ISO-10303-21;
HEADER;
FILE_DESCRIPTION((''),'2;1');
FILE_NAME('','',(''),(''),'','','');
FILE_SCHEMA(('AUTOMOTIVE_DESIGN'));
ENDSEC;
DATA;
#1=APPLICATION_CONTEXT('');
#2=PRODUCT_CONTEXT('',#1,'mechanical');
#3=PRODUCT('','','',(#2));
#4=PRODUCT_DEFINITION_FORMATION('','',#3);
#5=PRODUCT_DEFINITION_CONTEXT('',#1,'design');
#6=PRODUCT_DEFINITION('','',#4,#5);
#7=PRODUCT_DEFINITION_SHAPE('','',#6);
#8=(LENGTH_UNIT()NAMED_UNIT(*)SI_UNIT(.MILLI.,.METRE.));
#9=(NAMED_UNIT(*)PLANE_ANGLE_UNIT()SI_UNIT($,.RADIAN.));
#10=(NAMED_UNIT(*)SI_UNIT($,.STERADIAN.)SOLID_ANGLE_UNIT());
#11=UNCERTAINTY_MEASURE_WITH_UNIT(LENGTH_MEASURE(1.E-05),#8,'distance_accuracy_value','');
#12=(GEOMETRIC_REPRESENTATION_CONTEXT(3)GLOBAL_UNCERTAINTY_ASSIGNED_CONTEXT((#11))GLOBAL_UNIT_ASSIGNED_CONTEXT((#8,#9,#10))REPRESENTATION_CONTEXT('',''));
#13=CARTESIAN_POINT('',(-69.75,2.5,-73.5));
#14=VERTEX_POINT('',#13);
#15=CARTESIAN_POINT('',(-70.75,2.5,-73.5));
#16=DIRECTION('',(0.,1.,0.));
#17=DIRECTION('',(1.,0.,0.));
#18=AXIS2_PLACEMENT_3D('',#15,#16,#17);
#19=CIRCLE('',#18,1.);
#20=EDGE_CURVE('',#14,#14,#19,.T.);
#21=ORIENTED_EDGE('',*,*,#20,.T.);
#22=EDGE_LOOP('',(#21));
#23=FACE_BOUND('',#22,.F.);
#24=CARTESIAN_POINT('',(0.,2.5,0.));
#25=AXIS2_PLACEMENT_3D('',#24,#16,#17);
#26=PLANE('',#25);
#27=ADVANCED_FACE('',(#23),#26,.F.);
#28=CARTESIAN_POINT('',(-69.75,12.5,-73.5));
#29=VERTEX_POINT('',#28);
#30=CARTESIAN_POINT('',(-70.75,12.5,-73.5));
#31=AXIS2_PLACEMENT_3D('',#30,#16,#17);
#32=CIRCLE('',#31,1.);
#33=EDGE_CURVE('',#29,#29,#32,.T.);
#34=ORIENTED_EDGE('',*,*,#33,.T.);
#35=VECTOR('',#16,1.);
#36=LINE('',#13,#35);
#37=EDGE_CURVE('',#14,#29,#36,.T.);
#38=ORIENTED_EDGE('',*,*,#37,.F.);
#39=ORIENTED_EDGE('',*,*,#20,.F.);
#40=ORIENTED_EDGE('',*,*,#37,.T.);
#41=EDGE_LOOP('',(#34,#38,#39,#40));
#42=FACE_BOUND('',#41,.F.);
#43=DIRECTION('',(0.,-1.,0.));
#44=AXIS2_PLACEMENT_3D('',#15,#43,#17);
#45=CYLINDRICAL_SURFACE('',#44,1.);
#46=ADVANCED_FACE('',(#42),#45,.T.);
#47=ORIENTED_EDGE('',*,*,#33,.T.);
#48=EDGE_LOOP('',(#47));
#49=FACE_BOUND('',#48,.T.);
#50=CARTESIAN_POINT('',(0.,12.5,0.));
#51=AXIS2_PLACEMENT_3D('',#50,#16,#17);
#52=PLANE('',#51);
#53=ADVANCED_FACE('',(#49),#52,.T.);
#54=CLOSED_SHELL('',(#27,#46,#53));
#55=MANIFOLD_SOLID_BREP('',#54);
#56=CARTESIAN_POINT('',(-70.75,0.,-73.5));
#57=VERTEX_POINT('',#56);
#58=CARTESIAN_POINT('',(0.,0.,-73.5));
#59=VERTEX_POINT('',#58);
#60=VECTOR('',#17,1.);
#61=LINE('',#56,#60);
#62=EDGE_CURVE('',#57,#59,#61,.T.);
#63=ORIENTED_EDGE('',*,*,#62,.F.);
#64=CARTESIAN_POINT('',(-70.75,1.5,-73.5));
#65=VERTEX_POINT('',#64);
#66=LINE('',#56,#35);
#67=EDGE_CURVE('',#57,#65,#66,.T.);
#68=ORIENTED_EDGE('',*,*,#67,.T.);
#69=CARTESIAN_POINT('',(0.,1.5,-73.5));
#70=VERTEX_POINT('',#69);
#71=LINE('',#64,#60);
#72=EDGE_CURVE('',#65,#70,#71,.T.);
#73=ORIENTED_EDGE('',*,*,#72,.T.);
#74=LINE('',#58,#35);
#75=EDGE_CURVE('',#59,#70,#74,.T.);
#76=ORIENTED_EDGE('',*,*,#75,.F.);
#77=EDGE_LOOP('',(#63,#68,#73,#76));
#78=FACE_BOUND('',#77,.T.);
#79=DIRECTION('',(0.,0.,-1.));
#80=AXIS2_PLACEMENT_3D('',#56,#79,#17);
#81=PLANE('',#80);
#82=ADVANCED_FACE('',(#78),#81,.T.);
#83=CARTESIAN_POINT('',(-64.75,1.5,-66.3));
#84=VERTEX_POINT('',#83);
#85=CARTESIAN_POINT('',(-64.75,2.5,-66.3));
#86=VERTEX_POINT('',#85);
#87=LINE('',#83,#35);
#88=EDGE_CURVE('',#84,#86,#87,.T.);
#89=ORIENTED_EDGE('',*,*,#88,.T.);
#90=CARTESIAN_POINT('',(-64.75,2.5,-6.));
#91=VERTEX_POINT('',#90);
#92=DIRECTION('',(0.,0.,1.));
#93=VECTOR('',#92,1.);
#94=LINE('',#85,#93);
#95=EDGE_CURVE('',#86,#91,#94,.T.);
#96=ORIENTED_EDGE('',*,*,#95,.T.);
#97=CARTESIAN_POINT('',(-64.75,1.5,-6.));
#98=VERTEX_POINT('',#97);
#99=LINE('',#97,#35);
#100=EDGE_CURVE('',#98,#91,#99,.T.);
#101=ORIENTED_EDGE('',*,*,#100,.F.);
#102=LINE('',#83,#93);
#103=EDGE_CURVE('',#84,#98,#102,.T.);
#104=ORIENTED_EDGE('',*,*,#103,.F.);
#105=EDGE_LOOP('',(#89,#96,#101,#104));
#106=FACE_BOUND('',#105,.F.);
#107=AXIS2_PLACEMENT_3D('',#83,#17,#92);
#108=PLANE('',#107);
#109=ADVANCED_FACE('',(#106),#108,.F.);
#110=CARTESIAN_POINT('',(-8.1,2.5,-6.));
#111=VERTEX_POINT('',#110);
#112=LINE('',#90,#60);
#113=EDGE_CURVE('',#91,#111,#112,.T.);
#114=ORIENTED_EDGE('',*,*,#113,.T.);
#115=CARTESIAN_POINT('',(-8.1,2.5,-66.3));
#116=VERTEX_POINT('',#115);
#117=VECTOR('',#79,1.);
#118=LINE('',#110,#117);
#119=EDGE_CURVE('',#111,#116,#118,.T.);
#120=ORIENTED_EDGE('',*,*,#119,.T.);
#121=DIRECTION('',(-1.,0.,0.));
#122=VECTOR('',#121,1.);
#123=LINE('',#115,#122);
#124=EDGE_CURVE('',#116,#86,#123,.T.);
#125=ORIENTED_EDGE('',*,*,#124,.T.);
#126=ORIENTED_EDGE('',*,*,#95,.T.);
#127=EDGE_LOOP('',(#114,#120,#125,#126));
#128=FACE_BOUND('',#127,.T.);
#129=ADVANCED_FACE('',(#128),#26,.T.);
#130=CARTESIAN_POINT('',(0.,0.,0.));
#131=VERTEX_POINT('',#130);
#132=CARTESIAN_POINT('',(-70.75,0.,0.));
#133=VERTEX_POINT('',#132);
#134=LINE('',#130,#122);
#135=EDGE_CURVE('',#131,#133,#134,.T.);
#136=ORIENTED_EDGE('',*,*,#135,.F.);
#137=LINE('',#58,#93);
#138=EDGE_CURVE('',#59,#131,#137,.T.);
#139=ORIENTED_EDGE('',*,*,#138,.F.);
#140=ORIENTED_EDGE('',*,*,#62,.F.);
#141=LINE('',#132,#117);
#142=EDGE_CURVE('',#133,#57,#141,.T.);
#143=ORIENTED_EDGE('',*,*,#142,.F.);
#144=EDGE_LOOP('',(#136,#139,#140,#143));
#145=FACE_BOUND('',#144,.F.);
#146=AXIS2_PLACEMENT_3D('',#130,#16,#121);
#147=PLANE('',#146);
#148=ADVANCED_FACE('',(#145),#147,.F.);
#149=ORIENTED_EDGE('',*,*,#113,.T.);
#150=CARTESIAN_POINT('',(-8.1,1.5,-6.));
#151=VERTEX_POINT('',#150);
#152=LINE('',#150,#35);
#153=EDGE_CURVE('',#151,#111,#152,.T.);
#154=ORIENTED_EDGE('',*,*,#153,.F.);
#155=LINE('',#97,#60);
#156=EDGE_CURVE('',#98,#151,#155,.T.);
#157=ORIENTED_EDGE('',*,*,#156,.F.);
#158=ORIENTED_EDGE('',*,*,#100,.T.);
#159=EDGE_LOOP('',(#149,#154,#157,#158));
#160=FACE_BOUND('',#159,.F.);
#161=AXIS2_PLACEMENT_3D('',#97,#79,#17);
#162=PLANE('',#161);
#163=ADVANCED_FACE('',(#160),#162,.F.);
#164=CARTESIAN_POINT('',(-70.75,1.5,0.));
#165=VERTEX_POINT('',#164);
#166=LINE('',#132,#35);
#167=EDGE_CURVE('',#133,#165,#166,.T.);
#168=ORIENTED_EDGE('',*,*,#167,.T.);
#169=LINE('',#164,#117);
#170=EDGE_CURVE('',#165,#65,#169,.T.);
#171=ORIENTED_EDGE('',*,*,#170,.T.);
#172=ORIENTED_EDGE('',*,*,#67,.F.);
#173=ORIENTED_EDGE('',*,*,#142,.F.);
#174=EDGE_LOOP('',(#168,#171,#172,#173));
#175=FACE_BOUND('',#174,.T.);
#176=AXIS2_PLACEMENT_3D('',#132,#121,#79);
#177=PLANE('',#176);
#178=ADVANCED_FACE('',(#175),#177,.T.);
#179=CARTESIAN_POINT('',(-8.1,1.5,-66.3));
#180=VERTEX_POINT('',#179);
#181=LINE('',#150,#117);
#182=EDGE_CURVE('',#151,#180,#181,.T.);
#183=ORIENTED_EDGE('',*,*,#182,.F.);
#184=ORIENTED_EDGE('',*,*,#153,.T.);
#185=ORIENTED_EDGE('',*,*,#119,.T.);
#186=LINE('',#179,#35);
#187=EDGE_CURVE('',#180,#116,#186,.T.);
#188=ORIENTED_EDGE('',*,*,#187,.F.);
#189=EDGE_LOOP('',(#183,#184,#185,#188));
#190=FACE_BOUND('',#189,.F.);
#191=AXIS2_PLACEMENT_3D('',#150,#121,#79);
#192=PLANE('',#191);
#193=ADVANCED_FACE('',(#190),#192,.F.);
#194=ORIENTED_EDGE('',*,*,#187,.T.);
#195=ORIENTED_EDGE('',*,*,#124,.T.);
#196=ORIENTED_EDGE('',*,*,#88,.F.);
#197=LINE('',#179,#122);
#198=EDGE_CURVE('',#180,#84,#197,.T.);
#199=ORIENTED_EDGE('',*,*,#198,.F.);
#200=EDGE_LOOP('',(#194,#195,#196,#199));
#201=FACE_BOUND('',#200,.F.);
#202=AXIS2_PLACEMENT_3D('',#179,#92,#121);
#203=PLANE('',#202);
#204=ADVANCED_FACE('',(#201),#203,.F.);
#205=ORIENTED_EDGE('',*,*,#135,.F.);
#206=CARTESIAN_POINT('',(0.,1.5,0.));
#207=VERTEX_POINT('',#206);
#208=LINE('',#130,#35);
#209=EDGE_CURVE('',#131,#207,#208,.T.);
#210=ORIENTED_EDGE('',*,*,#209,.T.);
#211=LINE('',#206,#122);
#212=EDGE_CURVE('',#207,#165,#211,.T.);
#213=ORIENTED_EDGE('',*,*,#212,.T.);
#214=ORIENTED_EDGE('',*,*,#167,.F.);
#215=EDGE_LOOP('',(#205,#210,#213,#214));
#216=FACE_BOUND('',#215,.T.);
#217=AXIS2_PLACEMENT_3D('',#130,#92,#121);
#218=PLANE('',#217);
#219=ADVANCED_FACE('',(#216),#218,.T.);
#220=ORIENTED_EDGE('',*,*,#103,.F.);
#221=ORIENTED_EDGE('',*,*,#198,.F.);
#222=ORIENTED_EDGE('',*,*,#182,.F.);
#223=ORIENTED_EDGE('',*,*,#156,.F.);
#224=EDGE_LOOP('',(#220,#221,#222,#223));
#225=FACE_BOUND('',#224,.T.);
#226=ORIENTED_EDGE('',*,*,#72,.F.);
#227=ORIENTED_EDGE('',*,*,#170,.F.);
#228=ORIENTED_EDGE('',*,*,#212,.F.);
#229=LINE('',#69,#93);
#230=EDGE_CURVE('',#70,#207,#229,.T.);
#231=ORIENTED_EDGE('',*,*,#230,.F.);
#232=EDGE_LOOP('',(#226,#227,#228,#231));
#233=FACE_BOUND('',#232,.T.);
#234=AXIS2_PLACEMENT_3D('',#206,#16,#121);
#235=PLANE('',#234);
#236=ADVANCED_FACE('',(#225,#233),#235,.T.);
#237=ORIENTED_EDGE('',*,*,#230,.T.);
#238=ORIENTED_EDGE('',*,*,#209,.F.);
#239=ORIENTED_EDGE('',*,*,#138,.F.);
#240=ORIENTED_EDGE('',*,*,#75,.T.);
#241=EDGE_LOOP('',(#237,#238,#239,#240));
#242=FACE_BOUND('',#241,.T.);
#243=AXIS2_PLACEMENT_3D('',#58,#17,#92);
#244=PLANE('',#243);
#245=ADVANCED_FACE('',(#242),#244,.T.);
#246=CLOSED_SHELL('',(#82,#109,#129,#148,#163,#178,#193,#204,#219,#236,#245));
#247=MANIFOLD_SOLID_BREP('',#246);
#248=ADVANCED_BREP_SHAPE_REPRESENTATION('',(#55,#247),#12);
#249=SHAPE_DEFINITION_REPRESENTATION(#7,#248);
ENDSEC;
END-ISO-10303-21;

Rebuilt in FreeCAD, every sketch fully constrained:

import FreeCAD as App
import Part
import Sketcher
from FreeCAD import Vector


def add_polygon(sketch, points):
    """Adds a closed chain of lines whose ends are joined by coincident constraints."""
    first, n = sketch.GeometryCount, len(points)
    for a, b in zip(points, points[1:] + points[:1]):
        sketch.addGeometry(Part.LineSegment(App.Vector(*a, 0), App.Vector(*b, 0)), False)
    for i in range(n):
        sketch.addConstraint(Sketcher.Constraint("Coincident", first + i, 2, first + (i + 1) % n, 1))

doc = App.newDocument("Part")
body = doc.addObject("PartDesign::Body", "Body")
body.AllowCompound = True

# Sketch on XZ plane
sketch1 = doc.addObject("Sketcher::SketchObject", "Sketch")
body.addObject(sketch1)
sketch1.AttachmentSupport = (doc.XZ_Plane, [""])
sketch1.MapMode = "FlatFace"
add_polygon(sketch1, [(-71, 0), (0, 0), (0, -74), (-71, -74)])  # lines 0-3
sketch1.addConstraint([
    Sketcher.Constraint("Horizontal", 0),
    Sketcher.Constraint("Vertical", 1),
    Sketcher.Constraint("Horizontal", 2),
    Sketcher.Constraint("Vertical", 3),
    Sketcher.Constraint("Coincident", 0, 2, -1, 1),
    Sketcher.Constraint("DistanceY", 1, 2, 1, 1, 73.5),
    Sketcher.Constraint("DistanceX", 0, 1, 0, 2, 70.75),
])
pad1 = doc.addObject("PartDesign::Pad", "Pad")
body.addObject(pad1)
pad1.Profile = sketch1
pad1.Length = 1.5
pad1.Reversed = True

# Sketch on XZ plane
sketch2 = doc.addObject("Sketcher::SketchObject", "Sketch001")
body.addObject(sketch2)
sketch2.AttachmentSupport = (doc.XZ_Plane, [""])
sketch2.MapMode = "FlatFace"
sketch2.AttachmentOffset = App.Placement(Vector(0, 0, -1.5), App.Rotation())
add_polygon(sketch2, [(-65, -66), (-65, -6), (-8, -6), (-8, -66)])  # lines 0-3
sketch2.addConstraint([
    Sketcher.Constraint("Vertical", 0),
    Sketcher.Constraint("Horizontal", 1),
    Sketcher.Constraint("Vertical", 2),
    Sketcher.Constraint("Horizontal", 3),
    Sketcher.Constraint("DistanceY", 0, 2, -1, 1, 6.0),
    Sketcher.Constraint("DistanceX", 1, 2, -1, 1, 8.1),
    Sketcher.Constraint("DistanceY", 0, 1, 0, 2, 60.3),
    Sketcher.Constraint("DistanceX", 1, 1, 1, 2, 56.65),
])
pad2 = doc.addObject("PartDesign::Pad", "Pad001")
body.addObject(pad2)
pad2.Profile = sketch2
pad2.Length = 1
pad2.Reversed = True

# Sketch on XZ plane
sketch3 = doc.addObject("Sketcher::SketchObject", "Sketch002")
body.addObject(sketch3)
sketch3.AttachmentSupport = (doc.XZ_Plane, [""])
sketch3.MapMode = "FlatFace"
sketch3.AttachmentOffset = App.Placement(Vector(0, 0, -2.5), App.Rotation())
sketch3.addGeometry(Part.Circle(Vector(-70.8, -73.5, 0), Vector(0, 0, 1), 1), False)
sketch3.addConstraint([
    Sketcher.Constraint("Diameter", 0, 2.0),
    Sketcher.Constraint("DistanceY", 0, 3, -1, 1, 73.5),
    Sketcher.Constraint("DistanceX", 0, 3, -1, 1, 70.75),
])
pad3 = doc.addObject("PartDesign::Pad", "Pad002")
body.addObject(pad3)
pad3.Profile = sketch3
pad3.Length = 10
pad3.Reversed = True

doc.recompute()
